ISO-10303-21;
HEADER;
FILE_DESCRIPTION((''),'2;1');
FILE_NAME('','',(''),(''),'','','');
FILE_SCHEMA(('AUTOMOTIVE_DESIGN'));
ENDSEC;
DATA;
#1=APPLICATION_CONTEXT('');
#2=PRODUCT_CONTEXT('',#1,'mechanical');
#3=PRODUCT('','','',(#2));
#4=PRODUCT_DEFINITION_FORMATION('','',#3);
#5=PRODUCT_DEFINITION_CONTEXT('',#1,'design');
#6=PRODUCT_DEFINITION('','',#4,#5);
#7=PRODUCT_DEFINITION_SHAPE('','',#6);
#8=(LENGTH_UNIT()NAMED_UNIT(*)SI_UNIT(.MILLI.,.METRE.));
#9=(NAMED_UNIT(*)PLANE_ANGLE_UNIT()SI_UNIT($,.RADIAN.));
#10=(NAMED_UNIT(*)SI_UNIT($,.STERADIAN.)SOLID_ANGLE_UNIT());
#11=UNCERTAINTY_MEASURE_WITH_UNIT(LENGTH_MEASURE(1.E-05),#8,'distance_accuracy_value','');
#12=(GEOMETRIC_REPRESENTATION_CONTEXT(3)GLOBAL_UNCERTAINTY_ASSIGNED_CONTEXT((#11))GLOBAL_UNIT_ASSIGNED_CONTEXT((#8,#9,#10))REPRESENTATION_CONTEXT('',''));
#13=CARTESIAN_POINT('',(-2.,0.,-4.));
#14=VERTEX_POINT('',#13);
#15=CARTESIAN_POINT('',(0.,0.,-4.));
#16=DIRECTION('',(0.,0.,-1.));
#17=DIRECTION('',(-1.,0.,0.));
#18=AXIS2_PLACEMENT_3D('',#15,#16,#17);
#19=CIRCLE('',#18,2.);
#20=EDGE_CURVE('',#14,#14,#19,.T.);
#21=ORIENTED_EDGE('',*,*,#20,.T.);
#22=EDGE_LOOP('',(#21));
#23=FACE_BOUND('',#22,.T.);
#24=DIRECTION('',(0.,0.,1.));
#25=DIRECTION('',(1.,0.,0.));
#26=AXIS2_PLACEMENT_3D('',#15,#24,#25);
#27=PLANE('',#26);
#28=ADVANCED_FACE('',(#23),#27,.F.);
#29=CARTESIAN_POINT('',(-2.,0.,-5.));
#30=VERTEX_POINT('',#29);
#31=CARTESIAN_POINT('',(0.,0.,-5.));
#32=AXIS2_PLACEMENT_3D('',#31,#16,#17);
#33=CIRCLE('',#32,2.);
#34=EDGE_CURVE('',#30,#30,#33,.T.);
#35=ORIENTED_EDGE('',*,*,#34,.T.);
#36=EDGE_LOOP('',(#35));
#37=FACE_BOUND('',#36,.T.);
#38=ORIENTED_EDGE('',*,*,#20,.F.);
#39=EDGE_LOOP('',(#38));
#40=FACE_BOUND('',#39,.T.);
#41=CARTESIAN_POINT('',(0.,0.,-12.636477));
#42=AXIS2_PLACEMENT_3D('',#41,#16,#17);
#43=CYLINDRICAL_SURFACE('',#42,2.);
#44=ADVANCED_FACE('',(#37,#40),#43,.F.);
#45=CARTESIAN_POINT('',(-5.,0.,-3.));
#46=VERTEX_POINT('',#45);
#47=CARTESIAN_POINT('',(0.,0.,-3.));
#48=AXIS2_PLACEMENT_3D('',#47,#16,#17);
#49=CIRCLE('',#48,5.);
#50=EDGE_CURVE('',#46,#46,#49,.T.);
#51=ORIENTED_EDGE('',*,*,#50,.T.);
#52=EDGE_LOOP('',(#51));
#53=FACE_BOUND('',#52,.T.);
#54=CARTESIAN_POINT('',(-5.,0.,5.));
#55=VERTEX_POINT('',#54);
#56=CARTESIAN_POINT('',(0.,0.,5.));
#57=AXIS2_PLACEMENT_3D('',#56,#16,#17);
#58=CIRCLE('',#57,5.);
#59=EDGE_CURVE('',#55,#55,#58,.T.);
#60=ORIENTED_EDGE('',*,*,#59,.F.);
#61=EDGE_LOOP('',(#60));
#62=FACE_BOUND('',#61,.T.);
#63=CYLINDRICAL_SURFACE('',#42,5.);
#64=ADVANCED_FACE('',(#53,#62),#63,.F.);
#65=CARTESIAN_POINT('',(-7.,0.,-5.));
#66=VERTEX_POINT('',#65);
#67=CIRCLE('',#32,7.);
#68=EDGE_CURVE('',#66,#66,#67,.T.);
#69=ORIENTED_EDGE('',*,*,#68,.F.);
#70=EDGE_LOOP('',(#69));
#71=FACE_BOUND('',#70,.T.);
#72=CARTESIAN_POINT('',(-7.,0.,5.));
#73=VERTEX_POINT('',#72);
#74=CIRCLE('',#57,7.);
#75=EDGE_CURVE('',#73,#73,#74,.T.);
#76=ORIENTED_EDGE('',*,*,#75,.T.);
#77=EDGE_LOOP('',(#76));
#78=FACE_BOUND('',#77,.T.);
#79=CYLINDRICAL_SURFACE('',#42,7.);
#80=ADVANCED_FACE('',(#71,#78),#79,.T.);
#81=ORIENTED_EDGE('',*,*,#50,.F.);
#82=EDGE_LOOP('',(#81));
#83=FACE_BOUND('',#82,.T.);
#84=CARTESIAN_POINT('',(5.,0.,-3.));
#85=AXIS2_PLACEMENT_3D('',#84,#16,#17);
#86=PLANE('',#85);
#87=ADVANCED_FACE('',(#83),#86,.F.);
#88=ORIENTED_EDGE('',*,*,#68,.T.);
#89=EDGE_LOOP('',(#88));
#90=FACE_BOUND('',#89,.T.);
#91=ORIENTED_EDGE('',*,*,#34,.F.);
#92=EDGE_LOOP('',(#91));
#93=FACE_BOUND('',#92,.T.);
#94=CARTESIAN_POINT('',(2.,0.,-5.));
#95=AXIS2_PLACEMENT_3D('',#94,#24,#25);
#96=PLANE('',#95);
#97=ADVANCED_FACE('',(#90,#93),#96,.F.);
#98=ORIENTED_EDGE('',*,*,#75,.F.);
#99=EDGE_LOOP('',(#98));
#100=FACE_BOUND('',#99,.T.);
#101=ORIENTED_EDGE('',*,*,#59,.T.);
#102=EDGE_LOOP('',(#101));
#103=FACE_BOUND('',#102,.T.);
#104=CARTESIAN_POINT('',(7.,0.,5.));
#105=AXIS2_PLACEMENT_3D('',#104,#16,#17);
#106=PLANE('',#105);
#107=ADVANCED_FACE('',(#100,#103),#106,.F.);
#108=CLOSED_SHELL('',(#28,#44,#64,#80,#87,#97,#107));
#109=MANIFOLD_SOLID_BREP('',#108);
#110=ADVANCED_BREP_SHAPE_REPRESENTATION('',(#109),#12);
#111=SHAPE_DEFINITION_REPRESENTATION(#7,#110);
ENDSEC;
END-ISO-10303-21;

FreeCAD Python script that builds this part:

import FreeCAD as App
import Part
import Sketcher
Q = App.Units.Quantity


def add_polygon(sketch, points):
    """Adds a closed chain of lines whose ends are joined by coincident constraints."""
    first, n = sketch.GeometryCount, len(points)
    for a, b in zip(points, points[1:] + points[:1]):
        sketch.addGeometry(Part.LineSegment(App.Vector(*a, 0), App.Vector(*b, 0)), False)
    for i in range(n):
        sketch.addConstraint(Sketcher.Constraint("Coincident", first + i, 2, first + (i + 1) % n, 1))

doc = App.newDocument("Part")
body = doc.addObject("PartDesign::Body", "Body")

# Sketch on XZ plane
sketch1 = doc.addObject("Sketcher::SketchObject", "Sketch")
body.addObject(sketch1)
sketch1.AttachmentSupport = (doc.XZ_Plane, [""])
sketch1.MapMode = "FlatFace"
add_polygon(sketch1, [(2, -4), (0, -4), (0, -3), (5, -3), (5, 5), (7, 5), (7, -5), (2, -5)])  # lines 0-7
sketch1.addConstraint(Sketcher.Constraint("Horizontal", 0))
sketch1.addConstraint(Sketcher.Constraint("Vertical", 1))
sketch1.addConstraint(Sketcher.Constraint("Horizontal", 2))
sketch1.addConstraint(Sketcher.Constraint("Vertical", 3))
sketch1.addConstraint(Sketcher.Constraint("Horizontal", 4))
sketch1.addConstraint(Sketcher.Constraint("Vertical", 5))
sketch1.addConstraint(Sketcher.Constraint("Horizontal", 6))
sketch1.addConstraint(Sketcher.Constraint("Vertical", 7))
sketch1.addConstraint(Sketcher.Constraint("PointOnObject", 0, 2, -2))
sketch1.addConstraint(Sketcher.Constraint("Equal", 0, 4))
sketch1.addConstraint(Sketcher.Constraint("Equal", 1, 7))
sketch1.addConstraint(Sketcher.Constraint("DistanceX", 0, 2, 0, 1, Q("2 mm")))
sketch1.addConstraint(Sketcher.Constraint("DistanceX", 2, 1, 2, 2, Q("5 mm")))
sketch1.addConstraint(Sketcher.Constraint("DistanceY", 1, 1, 1, 2, Q("1 mm")))
sketch1.addConstraint(Sketcher.Constraint("DistanceY", 3, 1, 3, 2, Q("8 mm")))
sketch1.addConstraint(Sketcher.Constraint("DistanceY", 0, 2, -1, 1, Q("4 mm")))
revolution = doc.addObject("PartDesign::Revolution", "Revolution")
body.addObject(revolution)
revolution.Profile = sketch1
revolution.ReferenceAxis = (sketch1, ["V_Axis"])
revolution.Angle = 360

doc.recompute()
